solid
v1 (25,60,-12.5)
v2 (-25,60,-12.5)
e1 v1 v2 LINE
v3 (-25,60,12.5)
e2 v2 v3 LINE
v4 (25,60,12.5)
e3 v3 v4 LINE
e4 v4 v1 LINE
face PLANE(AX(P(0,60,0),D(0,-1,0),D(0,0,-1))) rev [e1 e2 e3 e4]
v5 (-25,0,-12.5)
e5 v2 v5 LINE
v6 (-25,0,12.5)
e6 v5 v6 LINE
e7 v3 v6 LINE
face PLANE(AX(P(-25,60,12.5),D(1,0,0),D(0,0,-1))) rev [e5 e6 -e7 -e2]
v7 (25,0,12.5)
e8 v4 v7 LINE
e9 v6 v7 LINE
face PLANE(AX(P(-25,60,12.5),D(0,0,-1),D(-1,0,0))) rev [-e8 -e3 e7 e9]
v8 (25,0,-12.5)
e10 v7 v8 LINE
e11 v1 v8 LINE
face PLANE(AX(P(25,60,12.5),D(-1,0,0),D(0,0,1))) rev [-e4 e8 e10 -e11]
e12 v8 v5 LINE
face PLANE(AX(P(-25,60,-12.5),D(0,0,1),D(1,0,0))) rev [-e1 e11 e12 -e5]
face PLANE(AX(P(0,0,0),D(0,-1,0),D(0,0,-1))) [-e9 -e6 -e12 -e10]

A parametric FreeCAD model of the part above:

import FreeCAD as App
import Part
import Sketcher
from FreeCAD import Vector
Q = App.Units.Quantity

doc = App.newDocument("Part")
body = doc.addObject("PartDesign::Body", "Body")

# Sketch on XZ plane
sketch1 = doc.addObject("Sketcher::SketchObject", "Sketch")
body.addObject(sketch1)
sketch1.AttachmentSupport = (doc.XZ_Plane, [""])
sketch1.MapMode = "FlatFace"
sketch1.addGeometry([
    Part.LineSegment(Vector(-25, -12.5, 0), Vector(-25, 12.5, 0)),
    Part.LineSegment(Vector(-25, 12.5, 0), Vector(25, 12.5, 0)),
    Part.LineSegment(Vector(25, 12.5, 0), Vector(25, -12.5, 0)),
    Part.LineSegment(Vector(25, -12.5, 0), Vector(-25, -12.5, 0)),
], False)
sketch1.addConstraint([
    Sketcher.Constraint("Coincident", 0, 2, 1, 1),
    Sketcher.Constraint("Coincident", 1, 2, 2, 1),
    Sketcher.Constraint("Coincident", 2, 2, 3, 1),
    Sketcher.Constraint("Coincident", 3, 2, 0, 1),
    Sketcher.Constraint("Vertical", 0),
    Sketcher.Constraint("Horizontal", 1),
    Sketcher.Constraint("Vertical", 2),
    Sketcher.Constraint("Horizontal", 3),
    Sketcher.Constraint("Symmetric", 0, 2, 2, 2, -1, 1),
    Sketcher.Constraint("DistanceX", 1, 1, 1, 2, Q("50 mm")),
    Sketcher.Constraint("DistanceY", 0, 1, 0, 2, Q("25 mm")),
])
pad1 = doc.addObject("PartDesign::Pad", "Pad")
body.addObject(pad1)
pad1.Profile = sketch1
pad1.Length = 60
pad1.Reversed = True

doc.recompute()
